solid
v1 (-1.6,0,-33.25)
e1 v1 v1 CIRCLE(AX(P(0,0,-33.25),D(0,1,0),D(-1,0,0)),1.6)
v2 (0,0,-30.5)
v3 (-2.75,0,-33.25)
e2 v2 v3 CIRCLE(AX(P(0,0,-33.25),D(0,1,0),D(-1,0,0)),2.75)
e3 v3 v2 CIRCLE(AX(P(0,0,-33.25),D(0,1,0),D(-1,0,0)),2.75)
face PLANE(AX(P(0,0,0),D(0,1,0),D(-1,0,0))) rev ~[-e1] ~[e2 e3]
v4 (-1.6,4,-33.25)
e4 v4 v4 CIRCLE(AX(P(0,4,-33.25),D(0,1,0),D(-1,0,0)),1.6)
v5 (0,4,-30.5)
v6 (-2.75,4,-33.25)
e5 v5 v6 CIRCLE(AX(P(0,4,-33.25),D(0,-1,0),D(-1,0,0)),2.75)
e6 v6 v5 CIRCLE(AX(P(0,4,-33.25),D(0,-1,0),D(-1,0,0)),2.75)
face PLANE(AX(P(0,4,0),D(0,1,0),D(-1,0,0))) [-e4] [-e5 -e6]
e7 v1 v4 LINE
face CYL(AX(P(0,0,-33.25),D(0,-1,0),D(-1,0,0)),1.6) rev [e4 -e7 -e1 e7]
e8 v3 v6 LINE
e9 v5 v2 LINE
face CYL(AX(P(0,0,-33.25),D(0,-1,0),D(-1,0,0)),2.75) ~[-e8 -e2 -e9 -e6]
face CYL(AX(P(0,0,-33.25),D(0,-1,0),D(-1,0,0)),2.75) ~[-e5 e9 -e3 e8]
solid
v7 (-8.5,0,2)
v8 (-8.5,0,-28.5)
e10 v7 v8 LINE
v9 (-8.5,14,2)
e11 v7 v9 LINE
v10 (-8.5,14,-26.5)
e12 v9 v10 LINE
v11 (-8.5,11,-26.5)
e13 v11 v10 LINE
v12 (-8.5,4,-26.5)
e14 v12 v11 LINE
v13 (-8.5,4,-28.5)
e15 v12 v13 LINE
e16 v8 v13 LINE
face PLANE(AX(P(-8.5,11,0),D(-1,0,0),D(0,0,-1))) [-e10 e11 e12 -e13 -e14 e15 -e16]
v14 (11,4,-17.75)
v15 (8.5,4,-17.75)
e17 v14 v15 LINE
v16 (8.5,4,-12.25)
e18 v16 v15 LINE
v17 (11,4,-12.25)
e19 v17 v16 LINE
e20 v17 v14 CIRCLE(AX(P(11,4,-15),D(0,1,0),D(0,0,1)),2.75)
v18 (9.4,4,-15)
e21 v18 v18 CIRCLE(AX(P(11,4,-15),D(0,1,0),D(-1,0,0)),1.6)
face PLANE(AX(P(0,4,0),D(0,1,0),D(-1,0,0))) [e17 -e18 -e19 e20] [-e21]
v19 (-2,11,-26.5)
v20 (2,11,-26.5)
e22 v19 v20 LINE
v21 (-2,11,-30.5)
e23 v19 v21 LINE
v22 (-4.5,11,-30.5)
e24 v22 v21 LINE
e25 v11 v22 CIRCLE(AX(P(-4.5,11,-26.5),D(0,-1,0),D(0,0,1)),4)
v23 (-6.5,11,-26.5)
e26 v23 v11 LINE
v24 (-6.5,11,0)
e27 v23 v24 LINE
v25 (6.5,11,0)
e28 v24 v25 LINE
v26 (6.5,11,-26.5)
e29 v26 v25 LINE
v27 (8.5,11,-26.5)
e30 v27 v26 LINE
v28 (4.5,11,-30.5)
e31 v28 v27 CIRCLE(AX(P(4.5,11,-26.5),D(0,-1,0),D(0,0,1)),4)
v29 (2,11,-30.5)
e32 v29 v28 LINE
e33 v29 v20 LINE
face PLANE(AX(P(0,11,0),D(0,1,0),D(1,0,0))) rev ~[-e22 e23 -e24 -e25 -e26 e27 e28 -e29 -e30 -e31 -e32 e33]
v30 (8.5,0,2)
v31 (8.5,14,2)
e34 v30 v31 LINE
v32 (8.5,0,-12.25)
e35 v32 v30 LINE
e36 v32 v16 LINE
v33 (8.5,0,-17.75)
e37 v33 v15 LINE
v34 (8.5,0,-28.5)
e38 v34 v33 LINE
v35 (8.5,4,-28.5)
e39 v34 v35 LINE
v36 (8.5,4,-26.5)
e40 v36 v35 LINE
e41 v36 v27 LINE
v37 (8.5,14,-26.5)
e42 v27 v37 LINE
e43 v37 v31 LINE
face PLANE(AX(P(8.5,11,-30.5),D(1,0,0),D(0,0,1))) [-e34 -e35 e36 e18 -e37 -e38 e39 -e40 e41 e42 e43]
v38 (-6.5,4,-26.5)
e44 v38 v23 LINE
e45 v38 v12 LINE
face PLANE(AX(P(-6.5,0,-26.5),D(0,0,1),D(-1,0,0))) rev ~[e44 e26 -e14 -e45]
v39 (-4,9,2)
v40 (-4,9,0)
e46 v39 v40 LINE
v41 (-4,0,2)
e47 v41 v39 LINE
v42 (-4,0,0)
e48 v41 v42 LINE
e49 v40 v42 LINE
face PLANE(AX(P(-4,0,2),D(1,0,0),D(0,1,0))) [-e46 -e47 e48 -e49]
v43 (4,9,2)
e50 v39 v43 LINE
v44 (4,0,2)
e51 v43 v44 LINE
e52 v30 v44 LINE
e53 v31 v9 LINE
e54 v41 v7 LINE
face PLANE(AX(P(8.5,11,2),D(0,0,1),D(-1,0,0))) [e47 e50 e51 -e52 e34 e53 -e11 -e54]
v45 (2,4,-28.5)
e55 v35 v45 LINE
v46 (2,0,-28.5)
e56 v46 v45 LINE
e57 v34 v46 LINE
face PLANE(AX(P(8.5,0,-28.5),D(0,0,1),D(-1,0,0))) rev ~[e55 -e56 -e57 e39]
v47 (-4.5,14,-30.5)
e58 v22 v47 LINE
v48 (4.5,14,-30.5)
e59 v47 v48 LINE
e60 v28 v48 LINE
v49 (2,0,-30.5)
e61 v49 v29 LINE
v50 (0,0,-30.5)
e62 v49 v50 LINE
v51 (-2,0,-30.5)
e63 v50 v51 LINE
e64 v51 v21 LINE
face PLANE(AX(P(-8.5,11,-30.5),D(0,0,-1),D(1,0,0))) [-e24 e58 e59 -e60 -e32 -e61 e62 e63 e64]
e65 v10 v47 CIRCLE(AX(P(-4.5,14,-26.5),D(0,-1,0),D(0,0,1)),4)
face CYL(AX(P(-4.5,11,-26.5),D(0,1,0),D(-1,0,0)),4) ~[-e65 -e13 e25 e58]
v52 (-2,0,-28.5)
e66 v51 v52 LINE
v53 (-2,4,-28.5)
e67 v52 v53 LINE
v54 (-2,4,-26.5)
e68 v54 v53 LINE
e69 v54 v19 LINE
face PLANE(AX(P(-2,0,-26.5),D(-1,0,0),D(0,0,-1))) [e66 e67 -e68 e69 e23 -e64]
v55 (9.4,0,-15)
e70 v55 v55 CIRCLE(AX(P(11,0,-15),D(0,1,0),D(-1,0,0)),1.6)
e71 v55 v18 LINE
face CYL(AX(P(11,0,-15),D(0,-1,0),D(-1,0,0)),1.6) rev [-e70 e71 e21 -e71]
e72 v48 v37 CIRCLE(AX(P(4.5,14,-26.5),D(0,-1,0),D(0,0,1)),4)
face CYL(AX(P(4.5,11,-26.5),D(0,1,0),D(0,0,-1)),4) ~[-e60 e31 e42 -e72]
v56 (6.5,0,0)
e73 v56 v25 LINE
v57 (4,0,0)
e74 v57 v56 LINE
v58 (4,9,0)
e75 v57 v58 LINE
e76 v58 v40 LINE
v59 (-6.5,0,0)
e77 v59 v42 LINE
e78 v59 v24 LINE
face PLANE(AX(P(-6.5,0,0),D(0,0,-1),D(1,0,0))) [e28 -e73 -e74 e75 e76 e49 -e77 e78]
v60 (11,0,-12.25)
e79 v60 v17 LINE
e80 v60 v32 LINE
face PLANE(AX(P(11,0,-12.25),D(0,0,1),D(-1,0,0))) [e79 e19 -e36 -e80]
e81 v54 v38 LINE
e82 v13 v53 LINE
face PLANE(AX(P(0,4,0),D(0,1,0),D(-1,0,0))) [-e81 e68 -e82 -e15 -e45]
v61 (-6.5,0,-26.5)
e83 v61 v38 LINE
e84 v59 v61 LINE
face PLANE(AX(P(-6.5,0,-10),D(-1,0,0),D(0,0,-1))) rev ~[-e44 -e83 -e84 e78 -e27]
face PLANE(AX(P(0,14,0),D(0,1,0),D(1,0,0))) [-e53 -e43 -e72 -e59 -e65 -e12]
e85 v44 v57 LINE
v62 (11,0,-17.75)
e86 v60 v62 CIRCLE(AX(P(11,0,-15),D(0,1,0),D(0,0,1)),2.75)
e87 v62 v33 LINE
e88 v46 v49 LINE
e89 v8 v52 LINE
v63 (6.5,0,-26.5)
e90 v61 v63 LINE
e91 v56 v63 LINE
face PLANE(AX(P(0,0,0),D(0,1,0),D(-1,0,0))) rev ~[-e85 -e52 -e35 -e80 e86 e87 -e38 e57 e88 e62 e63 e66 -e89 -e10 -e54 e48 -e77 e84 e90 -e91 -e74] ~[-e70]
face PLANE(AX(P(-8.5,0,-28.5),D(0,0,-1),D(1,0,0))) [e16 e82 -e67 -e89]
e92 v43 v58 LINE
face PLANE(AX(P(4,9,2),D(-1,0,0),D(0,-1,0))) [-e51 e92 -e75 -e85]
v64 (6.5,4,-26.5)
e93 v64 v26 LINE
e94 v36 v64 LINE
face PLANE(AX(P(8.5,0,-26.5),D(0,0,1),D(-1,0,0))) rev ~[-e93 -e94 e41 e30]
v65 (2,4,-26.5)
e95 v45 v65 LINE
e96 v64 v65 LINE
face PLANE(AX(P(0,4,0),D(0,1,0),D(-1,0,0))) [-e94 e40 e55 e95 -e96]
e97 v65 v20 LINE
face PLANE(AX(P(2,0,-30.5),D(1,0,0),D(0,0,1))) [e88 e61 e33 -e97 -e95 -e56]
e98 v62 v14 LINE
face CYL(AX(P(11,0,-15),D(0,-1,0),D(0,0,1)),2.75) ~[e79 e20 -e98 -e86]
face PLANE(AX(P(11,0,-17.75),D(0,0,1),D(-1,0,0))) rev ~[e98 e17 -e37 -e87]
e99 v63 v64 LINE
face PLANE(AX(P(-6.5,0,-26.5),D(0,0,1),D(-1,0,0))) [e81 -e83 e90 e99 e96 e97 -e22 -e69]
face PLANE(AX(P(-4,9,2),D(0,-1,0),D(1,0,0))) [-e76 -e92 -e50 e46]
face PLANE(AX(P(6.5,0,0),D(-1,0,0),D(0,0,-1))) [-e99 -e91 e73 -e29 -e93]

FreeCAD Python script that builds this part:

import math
import FreeCAD as App
import Part
import Sketcher
from FreeCAD import Vector
Q = App.Units.Quantity


def edges_at(feature, points):
    """Names of the edges that pass closest to the given points."""
    edges = feature.Shape.Edges
    near = lambda p: min(range(len(edges)), key=lambda i: edges[i].distToShape(Part.Vertex(*p))[0])
    return sorted({f"Edge{near(p) + 1}" for p in points})


def add_polygon(sketch, points):
    """Adds a closed chain of lines whose ends are joined by coincident constraints."""
    first, n = sketch.GeometryCount, len(points)
    for a, b in zip(points, points[1:] + points[:1]):
        sketch.addGeometry(Part.LineSegment(App.Vector(*a, 0), App.Vector(*b, 0)), False)
    for i in range(n):
        sketch.addConstraint(Sketcher.Constraint("Coincident", first + i, 2, first + (i + 1) % n, 1))

doc = App.newDocument("Part")
body = doc.addObject("PartDesign::Body", "Body")
body.AllowCompound = True

# Sketch on XZ plane
sketch1 = body.newObject("Sketcher::SketchObject", "Sketch")
sketch1.AttachmentSupport = (doc.getObject("XZ_Plane"), [""])
sketch1.MapMode = "FlatFace"
add_polygon(sketch1, [(-6.5, -26.5), (-8.5, -26.5), (-8.5, 2), (8.5, 2), (8.5, -26.5), (6.5, -26.5), (6.5, 0), (-6.5, 0)])  # lines 0-7
add_polygon(sketch1, [(-2, -30.5), (-2, -26.5), (2, -26.5), (2, -30.5)])  # lines 8-11
sketch1.addConstraint(Sketcher.Constraint("Horizontal", 0))
sketch1.addConstraint(Sketcher.Constraint("Vertical", 1))
sketch1.addConstraint(Sketcher.Constraint("Horizontal", 2))
sketch1.addConstraint(Sketcher.Constraint("Vertical", 3))
sketch1.addConstraint(Sketcher.Constraint("Horizontal", 4))
sketch1.addConstraint(Sketcher.Constraint("Vertical", 5))
sketch1.addConstraint(Sketcher.Constraint("Horizontal", 6))
sketch1.addConstraint(Sketcher.Constraint("Vertical", 7))
sketch1.addConstraint(Sketcher.Constraint("Vertical", 8))
sketch1.addConstraint(Sketcher.Constraint("Horizontal", 9))
sketch1.addConstraint(Sketcher.Constraint("Vertical", 10))
sketch1.addConstraint(Sketcher.Constraint("Horizontal", 11))
sketch1.addConstraint(Sketcher.Constraint("Symmetric", 5, 2, 6, 2, -1, 1))
sketch1.addConstraint(Sketcher.Constraint("Symmetric", 0, 2, 3, 2, -2))
sketch1.addConstraint(Sketcher.Constraint("Horizontal", 7, 2, 8, 2))
sketch1.addConstraint(Sketcher.Constraint("Equal", 11, 8))
sketch1.addConstraint(Sketcher.Constraint("DistanceX", 0, 2, 0, 1, Q("2 mm")))
sketch1.addConstraint(Sketcher.Constraint("DistanceX", 6, 2, 6, 1, Q("13 mm")))
sketch1.addConstraint(Sketcher.Constraint("DistanceX", 9, 1, 9, 2, Q("4 mm")))
sketch1.addConstraint(Sketcher.Constraint("DistanceY", 5, 1, 5, 2, Q("26.5 mm")))
sketch1.addConstraint(Sketcher.Constraint("DistanceY", -1, 1, 1, 2, Q("2 mm")))
sketch1.addConstraint(Sketcher.Constraint("DistanceX", 8, 2, -1, 1, Q("2 mm")))
pad1 = body.newObject("PartDesign::Pad", "Pad")
pad1.Profile = sketch1
pad1.Length = 11
pad1.Reversed = True

# Sketch on XZ plane
sketch2 = body.newObject("Sketcher::SketchObject", "Sketch001")
sketch2.AttachmentSupport = (doc.getObject("XZ_Plane"), [""])
sketch2.MapMode = "FlatFace"
add_polygon(sketch2, [(-8.5, -26.5), (-2, -26.5), (-2, -28.5), (-8.5, -28.5)])  # lines 0-3
add_polygon(sketch2, [(2, -28.5), (2, -26.5), (8.5, -26.5), (8.5, -28.5)])  # lines 4-7
sketch2.addGeometry(Part.Circle(Vector(0, -33.2, 0), Vector(0, 0, 1), 2.8), False)  # 8
sketch2.addGeometry(Part.Circle(Vector(0, -33.2, 0), Vector(0, 0, 1), 1.6), False)  # 9
sketch2.addGeometry(Part.LineSegment(Vector(11, -17.8, 0), Vector(8.5, -17.8, 0)), False)  # 10
sketch2.addGeometry(Part.LineSegment(Vector(8.5, -17.8, 0), Vector(8.5, -12.2, 0)), False)  # 11
sketch2.addGeometry(Part.LineSegment(Vector(8.5, -12.2, 0), Vector(11, -12.2, 0)), False)  # 12
sketch2.addGeometry(Part.ArcOfCircle(Part.Circle(Vector(11, -15, 0), Vector(0, 0, 1), 2.8), math.radians(-90), math.radians(90)), False)  # 13
sketch2.addGeometry(Part.Circle(Vector(11, -15, 0), Vector(0, 0, 1), 1.6), False)  # 14
sketch2.addConstraint(Sketcher.Constraint("Coincident", 10, 2, 11, 1))
sketch2.addConstraint(Sketcher.Constraint("Coincident", 11, 2, 12, 1))
sketch2.addConstraint(Sketcher.Constraint("Tangent", 12, 2, 13, 2))
sketch2.addConstraint(Sketcher.Constraint("Tangent", 13, 1, 10, 1))
sketch2.addConstraint(Sketcher.Constraint("Horizontal", 0))
sketch2.addConstraint(Sketcher.Constraint("Vertical", 1))
sketch2.addConstraint(Sketcher.Constraint("Horizontal", 2))
sketch2.addConstraint(Sketcher.Constraint("Vertical", 3))
sketch2.addConstraint(Sketcher.Constraint("Vertical", 4))
sketch2.addConstraint(Sketcher.Constraint("Horizontal", 5))
sketch2.addConstraint(Sketcher.Constraint("Vertical", 6))
sketch2.addConstraint(Sketcher.Constraint("Horizontal", 7))
sketch2.addConstraint(Sketcher.Constraint("Horizontal", 10))
sketch2.addConstraint(Sketcher.Constraint("Vertical", 11))
sketch2.addConstraint(Sketcher.Constraint("Horizontal", 12))
sketch2.addConstraint(Sketcher.Constraint("Coincident", 9, 3, 8, 3))
sketch2.addConstraint(Sketcher.Constraint("Coincident", 14, 3, 13, 3))
sketch2.addConstraint(Sketcher.Constraint("Equal", 8, 13))
sketch2.addConstraint(Sketcher.Constraint("Equal", 9, 14))
sketch2.addConstraint(Sketcher.Constraint("Symmetric", 0, 2, 4, 2, -2))
sketch2.addConstraint(Sketcher.Constraint("Symmetric", 2, 2, 6, 2, -2))
sketch2.addConstraint(Sketcher.Constraint("PointOnObject", 8, 3, -2))
sketch2.addConstraint(Sketcher.Constraint("Vertical", 6, 2, 10, 2))
sketch2.addConstraint(Sketcher.Constraint("Diameter", 8, Q("5.5 mm")))
sketch2.addConstraint(Sketcher.Constraint("Diameter", 9, Q("3.2 mm")))
sketch2.addConstraint(Sketcher.Constraint("DistanceY", 1, 2, 1, 1, Q("2 mm")))
sketch2.addConstraint(Sketcher.Constraint("DistanceY", 13, 3, -1, 1, Q("15 mm")))
sketch2.addConstraint(Sketcher.Constraint("DistanceX", 0, 2, -1, 1, Q("2 mm")))
sketch2.addConstraint(Sketcher.Constraint("DistanceX", 0, 2, 13, 3, Q("13 mm")))
sketch2.addConstraint(Sketcher.Constraint("DistanceY", 0, 2, -1, 1, Q("26.5 mm")))
sketch2.addConstraint(Sketcher.Constraint("DistanceX", 0, 1, 0, 2, Q("6.5 mm")))
sketch2.addConstraint(Sketcher.Constraint("DistanceY", 8, 3, -1, 1, Q("33.25 mm")))
pad2 = body.newObject("PartDesign::Pad", "Pad001")
pad2.Profile = sketch2
pad2.Length = 4
pad2.Reversed = True

# Sketch on XZ plane
sketch3 = body.newObject("Sketcher::SketchObject", "Sketch002")
sketch3.AttachmentSupport = (doc.getObject("XZ_Plane"), [""])
sketch3.MapMode = "FlatFace"
sketch3.AttachmentOffset = App.Placement(Vector(0, 0, -11), App.Rotation())
add_polygon(sketch3, [(-8, -30), (-8, 2), (8, 2), (8, -30)])  # lines 0-3
sketch3.addConstraint(Sketcher.Constraint("Vertical", 0))
sketch3.addConstraint(Sketcher.Constraint("Horizontal", 1))
sketch3.addConstraint(Sketcher.Constraint("Vertical", 2))
sketch3.addConstraint(Sketcher.Constraint("Horizontal", 3))
sketch3.addConstraint(Sketcher.Constraint("DistanceX", 1, 1, 1, 2, Q("17 mm")))
sketch3.addConstraint(Sketcher.Constraint("DistanceY", 0, 1, 0, 2, Q("32.5 mm")))
sketch3.addConstraint(Sketcher.Constraint("DistanceY", -1, 1, 0, 2, Q("2 mm")))
sketch3.addConstraint(Sketcher.Constraint("DistanceX", 0, 2, -1, 1, Q("8.5 mm")))
pad3 = body.newObject("PartDesign::Pad", "Pad002")
pad3.Profile = sketch3
pad3.Length = 3
pad3.Reversed = True
doc.recompute()

fillet = body.newObject("PartDesign::Fillet", "Fillet")
fillet.Base = (pad3, edges_at(pad3, [(8.5, 12.5, -30.5), (-8.5, 12.5, -30.5)]))
fillet.Radius = 4

# Sketch on XY plane
sketch4 = body.newObject("Sketcher::SketchObject", "Sketch003")
sketch4.AttachmentSupport = (doc.getObject("XY_Plane"), [""])
sketch4.MapMode = "FlatFace"
sketch4.AttachmentOffset = App.Placement(Vector(0, 0, 2), App.Rotation())
add_polygon(sketch4, [(-4, 9), (-4, 0), (4, 0), (4, 9)])  # lines 0-3
sketch4.addConstraint(Sketcher.Constraint("Vertical", 0))
sketch4.addConstraint(Sketcher.Constraint("Horizontal", 1))
sketch4.addConstraint(Sketcher.Constraint("Vertical", 2))
sketch4.addConstraint(Sketcher.Constraint("Horizontal", 3))
sketch4.addConstraint(Sketcher.Constraint("Symmetric", 0, 2, 1, 2, -1, 1))
sketch4.addConstraint(Sketcher.Constraint("DistanceX", 1, 1, 1, 2, Q("8 mm")))
sketch4.addConstraint(Sketcher.Constraint("DistanceY", 0, 2, 0, 1, Q("9 mm")))
pocket1 = body.newObject("PartDesign::Pocket", "Pocket")
pocket1.Profile = sketch4
pocket1.Length = 3

doc.recompute()
